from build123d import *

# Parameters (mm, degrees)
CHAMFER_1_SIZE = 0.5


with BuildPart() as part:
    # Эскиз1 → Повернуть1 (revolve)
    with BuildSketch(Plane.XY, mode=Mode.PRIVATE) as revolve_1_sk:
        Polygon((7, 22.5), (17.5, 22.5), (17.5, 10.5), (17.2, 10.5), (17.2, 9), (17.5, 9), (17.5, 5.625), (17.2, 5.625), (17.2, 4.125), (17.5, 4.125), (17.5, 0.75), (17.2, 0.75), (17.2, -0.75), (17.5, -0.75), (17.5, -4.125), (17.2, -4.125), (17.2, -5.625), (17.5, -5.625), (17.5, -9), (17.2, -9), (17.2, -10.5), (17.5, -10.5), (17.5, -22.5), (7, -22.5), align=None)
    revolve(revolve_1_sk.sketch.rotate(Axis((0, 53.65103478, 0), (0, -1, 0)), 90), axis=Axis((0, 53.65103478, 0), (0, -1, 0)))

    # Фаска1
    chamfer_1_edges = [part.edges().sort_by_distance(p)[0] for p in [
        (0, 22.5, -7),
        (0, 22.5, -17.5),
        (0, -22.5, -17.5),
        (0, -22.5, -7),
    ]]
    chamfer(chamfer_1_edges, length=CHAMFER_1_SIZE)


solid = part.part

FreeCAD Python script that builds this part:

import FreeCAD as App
import Part
import Sketcher

V = App.Vector


def edges_at(feature, points):
    """Names of the edges that pass closest to the given points."""
    edges = feature.Shape.Edges
    near = lambda p: min(range(len(edges)), key=lambda i: edges[i].distToShape(Part.Vertex(*p))[0])
    return sorted({f"Edge{near(p) + 1}" for p in points})


def add_polygon(sketch, points):
    """Adds a closed chain of lines whose ends are joined by coincident constraints."""
    first, n = sketch.GeometryCount, len(points)
    for a, b in zip(points, points[1:] + points[:1]):
        sketch.addGeometry(Part.LineSegment(App.Vector(*a, 0), App.Vector(*b, 0)), False)
    for i in range(n):
        sketch.addConstraint(Sketcher.Constraint("Coincident", first + i, 2, first + (i + 1) % n, 1))

doc = App.newDocument("Part")
body = doc.addObject("PartDesign::Body", "Body")

# Sketch on XY plane
sketch1 = doc.addObject("Sketcher::SketchObject", "Sketch")
body.addObject(sketch1)
sketch1.AttachmentSupport = (doc.XY_Plane, [""])
sketch1.MapMode = "FlatFace"
add_polygon(sketch1, [(17.5, 22.5), (7, 22.5), (7, -22.5), (17.5, -22.5), (17.5, -10.5), (17.2, -10.5), (17.2, -9), (17.5, -9), (17.5, -5.62), (17.2, -5.62), (17.2, -4.12), (17.5, -4.12), (17.5, -0.75), (17.2, -0.75), (17.2, 0.75), (17.5, 0.75), (17.5, 4.12), (17.2, 4.12), (17.2, 5.62), (17.5, 5.62), (17.5, 9), (17.2, 9), (17.2, 10.5), (17.5, 10.5)])  # lines 0-23
sketch1.addConstraint(Sketcher.Constraint("Horizontal", 0))
sketch1.addConstraint(Sketcher.Constraint("Vertical", 1))
sketch1.addConstraint(Sketcher.Constraint("Horizontal", 2))
sketch1.addConstraint(Sketcher.Constraint("Vertical", 3))
sketch1.addConstraint(Sketcher.Constraint("Horizontal", 4))
sketch1.addConstraint(Sketcher.Constraint("Vertical", 5))
sketch1.addConstraint(Sketcher.Constraint("Horizontal", 6))
sketch1.addConstraint(Sketcher.Constraint("Vertical", 7))
sketch1.addConstraint(Sketcher.Constraint("Horizontal", 8))
sketch1.addConstraint(Sketcher.Constraint("Vertical", 9))
sketch1.addConstraint(Sketcher.Constraint("Horizontal", 10))
sketch1.addConstraint(Sketcher.Constraint("Vertical", 11))
sketch1.addConstraint(Sketcher.Constraint("Horizontal", 12))
sketch1.addConstraint(Sketcher.Constraint("Vertical", 13))
sketch1.addConstraint(Sketcher.Constraint("Horizontal", 14))
sketch1.addConstraint(Sketcher.Constraint("Vertical", 15))
sketch1.addConstraint(Sketcher.Constraint("Horizontal", 16))
sketch1.addConstraint(Sketcher.Constraint("Vertical", 17))
sketch1.addConstraint(Sketcher.Constraint("Horizontal", 18))
sketch1.addConstraint(Sketcher.Constraint("Vertical", 19))
sketch1.addConstraint(Sketcher.Constraint("Horizontal", 20))
sketch1.addConstraint(Sketcher.Constraint("Vertical", 21))
sketch1.addConstraint(Sketcher.Constraint("Horizontal", 22))
sketch1.addConstraint(Sketcher.Constraint("Vertical", 23))
sketch1.addConstraint(Sketcher.Constraint("Symmetric", 11, 2, 14, 2, -1))
sketch1.addConstraint(Sketcher.Constraint("Symmetric", 9, 2, 16, 2, -1))
sketch1.addConstraint(Sketcher.Constraint("Symmetric", 7, 2, 18, 2, -1))
sketch1.addConstraint(Sketcher.Constraint("Symmetric", 5, 2, 20, 2, -1))
sketch1.addConstraint(Sketcher.Constraint("Symmetric", 3, 2, 22, 2, -1))
sketch1.addConstraint(Sketcher.Constraint("Vertical", 3, 2, 6, 2))
sketch1.addConstraint(Sketcher.Constraint("Vertical", 5, 2, 8, 2))
sketch1.addConstraint(Sketcher.Constraint("Vertical", 7, 2, 10, 2))
sketch1.addConstraint(Sketcher.Constraint("Vertical", 9, 2, 12, 2))
sketch1.addConstraint(Sketcher.Constraint("Equal", 5, 9))
sketch1.addConstraint(Sketcher.Constraint("Equal", 7, 11))
sketch1.addConstraint(Sketcher.Constraint("Equal", 9, 13))
sketch1.addConstraint(Sketcher.Constraint("Equal", 3, 23))
sketch1.addConstraint(Sketcher.Constraint("DistanceY", 1, 2, 1, 1, 45.0))
sketch1.addConstraint(Sketcher.Constraint("DistanceY", 3, 1, 3, 2, 12.0))
sketch1.addConstraint(Sketcher.Constraint("DistanceX", 0, 2, 0, 1, 10.5))
sketch1.addConstraint(Sketcher.Constraint("DistanceX", 4, 2, 4, 1, 0.3))
sketch1.addConstraint(Sketcher.Constraint("DistanceY", 5, 1, 5, 2, 1.5))
sketch1.addConstraint(Sketcher.Constraint("DistanceX", -1, 1, 0, 2, 7.0))
revolution = doc.addObject("PartDesign::Revolution", "Revolution")
body.addObject(revolution)
revolution.Profile = sketch1
revolution.ReferenceAxis = (sketch1, ["V_Axis"])
revolution.Angle = 360
doc.recompute()

chamfer = doc.addObject("PartDesign::Chamfer", "Chamfer")
body.addObject(chamfer)
chamfer.Base = (revolution, edges_at(revolution, [
    (0, 22.5, -7),
    (0, 22.5, -17.5),
    (0, -22.5, -17.5),
    (0, -22.5, -7),
]))
chamfer.Size = 0.5

doc.recompute()
